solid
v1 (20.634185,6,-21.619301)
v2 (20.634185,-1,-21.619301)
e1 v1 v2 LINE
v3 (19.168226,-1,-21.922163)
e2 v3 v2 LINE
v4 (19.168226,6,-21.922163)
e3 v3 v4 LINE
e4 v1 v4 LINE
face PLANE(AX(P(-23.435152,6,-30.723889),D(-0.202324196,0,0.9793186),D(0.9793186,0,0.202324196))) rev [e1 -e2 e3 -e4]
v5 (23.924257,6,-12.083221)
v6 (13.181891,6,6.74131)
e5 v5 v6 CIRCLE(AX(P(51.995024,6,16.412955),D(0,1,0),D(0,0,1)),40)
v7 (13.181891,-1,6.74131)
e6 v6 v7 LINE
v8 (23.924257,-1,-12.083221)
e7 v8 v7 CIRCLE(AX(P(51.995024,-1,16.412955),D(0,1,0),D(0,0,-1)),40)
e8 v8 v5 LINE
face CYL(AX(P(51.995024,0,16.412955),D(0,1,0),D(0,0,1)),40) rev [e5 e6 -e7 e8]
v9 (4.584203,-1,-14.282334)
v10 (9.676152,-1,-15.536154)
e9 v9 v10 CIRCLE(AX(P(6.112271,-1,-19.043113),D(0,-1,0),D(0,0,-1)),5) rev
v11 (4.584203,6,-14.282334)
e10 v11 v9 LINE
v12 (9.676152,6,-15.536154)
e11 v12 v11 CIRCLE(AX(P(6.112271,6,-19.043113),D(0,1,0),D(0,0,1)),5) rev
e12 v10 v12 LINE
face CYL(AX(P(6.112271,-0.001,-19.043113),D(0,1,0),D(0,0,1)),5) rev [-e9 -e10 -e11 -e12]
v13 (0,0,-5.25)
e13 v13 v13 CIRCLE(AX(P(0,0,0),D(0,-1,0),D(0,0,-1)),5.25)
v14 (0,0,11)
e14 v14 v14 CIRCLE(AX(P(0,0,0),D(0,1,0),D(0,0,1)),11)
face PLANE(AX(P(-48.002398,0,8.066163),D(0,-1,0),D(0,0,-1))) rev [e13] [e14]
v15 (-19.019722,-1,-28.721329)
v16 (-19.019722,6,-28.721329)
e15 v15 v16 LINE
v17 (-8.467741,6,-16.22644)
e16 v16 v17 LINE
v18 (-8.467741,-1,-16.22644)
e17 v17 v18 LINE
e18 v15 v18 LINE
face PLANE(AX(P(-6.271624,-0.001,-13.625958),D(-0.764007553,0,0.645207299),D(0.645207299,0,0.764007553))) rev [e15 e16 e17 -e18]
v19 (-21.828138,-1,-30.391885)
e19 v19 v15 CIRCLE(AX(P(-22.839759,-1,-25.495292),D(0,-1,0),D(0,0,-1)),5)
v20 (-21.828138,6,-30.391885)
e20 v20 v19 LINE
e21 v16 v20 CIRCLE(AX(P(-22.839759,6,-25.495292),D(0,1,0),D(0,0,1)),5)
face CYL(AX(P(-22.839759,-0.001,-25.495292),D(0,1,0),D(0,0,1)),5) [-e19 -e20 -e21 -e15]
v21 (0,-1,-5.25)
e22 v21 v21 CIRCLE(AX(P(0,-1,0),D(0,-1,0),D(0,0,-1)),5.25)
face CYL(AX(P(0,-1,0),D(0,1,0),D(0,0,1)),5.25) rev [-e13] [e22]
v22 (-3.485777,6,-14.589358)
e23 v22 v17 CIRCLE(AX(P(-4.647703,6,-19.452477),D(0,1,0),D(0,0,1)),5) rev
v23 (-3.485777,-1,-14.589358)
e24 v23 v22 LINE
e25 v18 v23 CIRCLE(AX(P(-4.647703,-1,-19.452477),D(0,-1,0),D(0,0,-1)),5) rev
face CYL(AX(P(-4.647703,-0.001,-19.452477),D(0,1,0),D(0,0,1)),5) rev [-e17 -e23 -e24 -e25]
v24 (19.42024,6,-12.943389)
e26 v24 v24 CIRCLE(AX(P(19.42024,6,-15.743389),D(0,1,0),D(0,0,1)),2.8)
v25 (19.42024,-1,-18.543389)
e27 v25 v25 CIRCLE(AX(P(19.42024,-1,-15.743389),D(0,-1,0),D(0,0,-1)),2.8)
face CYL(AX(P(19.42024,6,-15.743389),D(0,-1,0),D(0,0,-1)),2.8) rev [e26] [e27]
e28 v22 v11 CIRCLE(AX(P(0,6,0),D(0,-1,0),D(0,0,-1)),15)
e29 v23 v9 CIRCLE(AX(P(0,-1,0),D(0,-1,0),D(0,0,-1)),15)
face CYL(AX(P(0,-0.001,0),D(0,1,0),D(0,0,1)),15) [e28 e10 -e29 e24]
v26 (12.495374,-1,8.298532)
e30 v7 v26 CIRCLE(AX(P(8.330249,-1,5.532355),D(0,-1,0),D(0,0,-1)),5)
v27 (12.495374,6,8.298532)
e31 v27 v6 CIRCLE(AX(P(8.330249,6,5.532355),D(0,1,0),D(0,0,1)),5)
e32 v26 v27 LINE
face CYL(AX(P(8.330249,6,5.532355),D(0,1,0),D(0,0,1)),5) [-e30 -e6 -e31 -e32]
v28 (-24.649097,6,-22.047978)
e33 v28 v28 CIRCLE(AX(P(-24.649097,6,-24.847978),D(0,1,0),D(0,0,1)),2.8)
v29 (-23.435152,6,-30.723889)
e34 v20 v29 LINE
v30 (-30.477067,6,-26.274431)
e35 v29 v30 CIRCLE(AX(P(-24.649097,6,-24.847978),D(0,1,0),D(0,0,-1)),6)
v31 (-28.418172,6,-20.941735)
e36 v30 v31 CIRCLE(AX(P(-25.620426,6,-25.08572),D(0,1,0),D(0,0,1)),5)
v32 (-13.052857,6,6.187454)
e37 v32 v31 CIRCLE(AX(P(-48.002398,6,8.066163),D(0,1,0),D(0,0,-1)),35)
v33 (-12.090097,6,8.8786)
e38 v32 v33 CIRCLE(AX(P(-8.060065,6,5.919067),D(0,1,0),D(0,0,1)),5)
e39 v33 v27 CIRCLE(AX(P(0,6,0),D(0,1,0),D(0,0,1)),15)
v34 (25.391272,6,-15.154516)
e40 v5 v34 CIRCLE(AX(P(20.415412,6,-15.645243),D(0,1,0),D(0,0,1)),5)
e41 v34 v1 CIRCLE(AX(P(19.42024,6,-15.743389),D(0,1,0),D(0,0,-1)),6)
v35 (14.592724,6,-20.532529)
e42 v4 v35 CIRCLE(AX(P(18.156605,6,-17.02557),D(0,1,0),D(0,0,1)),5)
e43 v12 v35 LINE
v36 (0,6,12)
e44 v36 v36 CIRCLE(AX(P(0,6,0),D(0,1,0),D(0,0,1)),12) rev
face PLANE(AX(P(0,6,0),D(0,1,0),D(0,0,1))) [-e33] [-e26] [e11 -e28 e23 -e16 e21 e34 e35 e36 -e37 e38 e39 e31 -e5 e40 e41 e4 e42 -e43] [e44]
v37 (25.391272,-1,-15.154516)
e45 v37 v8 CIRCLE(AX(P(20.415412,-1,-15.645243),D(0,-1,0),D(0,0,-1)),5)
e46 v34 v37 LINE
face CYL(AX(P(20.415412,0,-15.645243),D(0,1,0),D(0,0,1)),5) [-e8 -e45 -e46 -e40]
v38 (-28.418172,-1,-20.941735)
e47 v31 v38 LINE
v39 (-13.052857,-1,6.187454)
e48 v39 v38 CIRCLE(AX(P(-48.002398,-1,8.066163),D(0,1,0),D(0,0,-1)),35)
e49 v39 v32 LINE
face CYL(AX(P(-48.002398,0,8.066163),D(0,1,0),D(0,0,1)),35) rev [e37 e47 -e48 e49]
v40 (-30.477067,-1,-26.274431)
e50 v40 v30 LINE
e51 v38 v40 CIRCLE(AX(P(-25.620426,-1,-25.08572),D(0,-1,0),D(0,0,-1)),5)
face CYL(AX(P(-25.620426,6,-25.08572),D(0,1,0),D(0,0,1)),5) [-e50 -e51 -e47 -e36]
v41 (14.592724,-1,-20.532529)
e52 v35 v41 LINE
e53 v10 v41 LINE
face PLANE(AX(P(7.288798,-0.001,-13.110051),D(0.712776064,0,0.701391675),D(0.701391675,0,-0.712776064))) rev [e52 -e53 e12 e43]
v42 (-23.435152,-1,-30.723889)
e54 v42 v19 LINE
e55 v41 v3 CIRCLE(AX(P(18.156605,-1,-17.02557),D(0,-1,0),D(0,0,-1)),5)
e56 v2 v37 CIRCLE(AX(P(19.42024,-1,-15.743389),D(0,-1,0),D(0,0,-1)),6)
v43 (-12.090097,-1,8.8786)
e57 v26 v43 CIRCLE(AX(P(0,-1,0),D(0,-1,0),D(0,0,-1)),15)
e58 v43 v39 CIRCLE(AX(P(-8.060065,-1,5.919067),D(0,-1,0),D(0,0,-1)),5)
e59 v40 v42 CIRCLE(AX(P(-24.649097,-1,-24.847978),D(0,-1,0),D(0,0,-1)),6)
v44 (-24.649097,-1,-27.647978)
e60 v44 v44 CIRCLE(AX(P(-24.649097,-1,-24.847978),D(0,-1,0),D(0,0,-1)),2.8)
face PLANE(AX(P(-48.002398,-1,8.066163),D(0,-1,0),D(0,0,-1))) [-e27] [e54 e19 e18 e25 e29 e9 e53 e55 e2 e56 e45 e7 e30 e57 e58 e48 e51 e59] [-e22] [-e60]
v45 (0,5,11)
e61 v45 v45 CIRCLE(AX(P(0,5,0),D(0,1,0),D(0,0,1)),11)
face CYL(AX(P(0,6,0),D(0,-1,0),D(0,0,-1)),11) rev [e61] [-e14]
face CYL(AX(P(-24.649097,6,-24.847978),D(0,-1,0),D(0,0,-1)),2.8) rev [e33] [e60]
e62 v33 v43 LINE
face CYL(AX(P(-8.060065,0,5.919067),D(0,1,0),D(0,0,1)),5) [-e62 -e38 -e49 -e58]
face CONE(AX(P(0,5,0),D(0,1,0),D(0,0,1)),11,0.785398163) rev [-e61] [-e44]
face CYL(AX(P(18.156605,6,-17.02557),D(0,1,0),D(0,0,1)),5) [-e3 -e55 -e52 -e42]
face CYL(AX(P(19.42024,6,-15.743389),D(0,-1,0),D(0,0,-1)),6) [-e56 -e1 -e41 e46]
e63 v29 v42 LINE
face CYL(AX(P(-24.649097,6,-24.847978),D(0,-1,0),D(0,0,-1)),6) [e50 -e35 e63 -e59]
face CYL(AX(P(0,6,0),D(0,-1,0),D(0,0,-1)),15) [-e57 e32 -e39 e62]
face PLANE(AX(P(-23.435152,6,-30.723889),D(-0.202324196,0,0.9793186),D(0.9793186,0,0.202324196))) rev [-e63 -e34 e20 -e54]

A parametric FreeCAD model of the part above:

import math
import FreeCAD as App
import Part
import Sketcher

V = App.Vector


def edges_at(feature, points):
    """Names of the edges that pass closest to the given points."""
    edges = feature.Shape.Edges
    near = lambda p: min(range(len(edges)), key=lambda i: edges[i].distToShape(Part.Vertex(*p))[0])
    return sorted({f"Edge{near(p) + 1}" for p in points})

doc = App.newDocument("Part")
body = doc.addObject("PartDesign::Body", "Body")

# Sketch on XZ plane
sketch1 = body.newObject("Sketcher::SketchObject", "Sketch")
sketch1.AttachmentSupport = (doc.getObject("XZ_Plane"), [""])
sketch1.MapMode = "FlatFace"
sketch1.addGeometry([
    Part.LineSegment(V(-29.9, -21.9, 0), V(-13, 7.5, 0)),  # 0
    Part.ArcOfCircle(Part.Circle(V(0, 0, 0), V(0, 0, 1), 15), math.radians(30), math.radians(150)),  # 1
    Part.LineSegment(V(13, 7.5, 0), V(24.6, -12.8, 0)),  # 2
    Part.ArcOfCircle(Part.Circle(V(19.4, -15.7, 0), V(0, 0, 1), 6), math.radians(-78), math.radians(30)),  # 3
    Part.LineSegment(V(20.6, -21.6, 0), V(-23.4, -30.7, 0)),  # 4
    Part.ArcOfCircle(Part.Circle(V(-24.6, -24.8, 0), V(0, 0, 1), 6), math.radians(150), math.radians(282)),  # 5
    Part.Circle(V(0, 0, 0), V(0, 0, 1), 11),  # 6
    Part.Circle(V(19.4, -15.7, 0), V(0, 0, 1), 2.8),  # 7
    Part.Circle(V(-24.6, -24.8, 0), V(0, 0, 1), 2.8),  # 8
], False)
sketch1.addConstraint([
    Sketcher.Constraint("Tangent", 0, 2, 1, 2),
    Sketcher.Constraint("Tangent", 1, 1, 2, 1),
    Sketcher.Constraint("Tangent", 2, 2, 3, 2),
    Sketcher.Constraint("Tangent", 3, 1, 4, 1),
    Sketcher.Constraint("Tangent", 4, 2, 5, 2),
    Sketcher.Constraint("Tangent", 5, 1, 0, 1),
    Sketcher.Constraint("Coincident", 1, 3, -1, 1),
    Sketcher.Constraint("Coincident", 6, 3, -1, 1),
    Sketcher.Constraint("Coincident", 7, 3, 3, 3),
    Sketcher.Constraint("Coincident", 8, 3, 5, 3),
    Sketcher.Constraint("Equal", 3, 5),
    Sketcher.Constraint("Equal", 7, 8),
    Sketcher.Constraint("Horizontal", 0, 2, 1, 1),
    Sketcher.Constraint("Diameter", 6, 22.0),
    Sketcher.Constraint("Radius", 1, 15.0),
    Sketcher.Constraint("Radius", 3, 6.0),
    Sketcher.Constraint("Diameter", 7, 5.6),
    Sketcher.Constraint("Distance", 4, 45.0),
    Sketcher.Constraint("DistanceY", 3, 1, -1, 1, 21.619301),
    Sketcher.Constraint("DistanceY", 5, 3, 0, 2, 32.3183),
])
pad1 = body.newObject("PartDesign::Pad", "Pad")
pad1.Profile = sketch1
pad1.Length = 6
pad1.Reversed = True

# Sketch on XZ plane
sketch2 = body.newObject("Sketcher::SketchObject", "Sketch001")
sketch2.AttachmentSupport = (doc.getObject("XZ_Plane"), [""])
sketch2.MapMode = "FlatFace"
sketch2.AttachmentOffset = App.Placement(V(0, 0, -6), App.Rotation())
sketch2.addGeometry([
    Part.LineSegment(V(-20, -30, 0), V(-6, -14, 0)),
    Part.ArcOfCircle(Part.Circle(V(0, 0, 0), V(0, 0, 1), 15), math.radians(-115), math.radians(-61)),
    Part.LineSegment(V(7, -13, 0), V(17, -22, 0)),
    Part.LineSegment(V(17, -22, 0), V(-20, -30, 0)),
], False)
sketch2.addConstraint([
    Sketcher.Constraint("Coincident", 0, 2, 1, 1),
    Sketcher.Constraint("Coincident", 1, 2, 2, 1),
    Sketcher.Constraint("Coincident", 2, 2, 3, 1),
    Sketcher.Constraint("Coincident", 3, 2, 0, 1),
    Sketcher.Constraint("Coincident", 1, 3, -1, 1),
    Sketcher.Constraint("Radius", 1, 15.0),
    Sketcher.Constraint("Distance", 2, 13.13584),
    Sketcher.Constraint("Distance", 3, 37.411009),
    Sketcher.Constraint("DistanceY", 0, 2, -1, 1, 13.625958),
    Sketcher.Constraint("DistanceY", 1, 2, -1, 1, 13.110051),
    Sketcher.Constraint("DistanceX", 3, 2, -1, 1, 20.135131),
    Sketcher.Constraint("DistanceX", 1, 2, 2, 2, 9.213369),
])
pocket1 = body.newObject("PartDesign::Pocket", "Pocket")
pocket1.Profile = sketch2
pocket1.Type = "UpToFirst"
pocket1.Reversed = True
doc.recompute()

chamfer = body.newObject("PartDesign::Chamfer", "Chamfer")
chamfer.Base = (pocket1, edges_at(pocket1, [(0, 6, -11)]))
chamfer.Size = 1

# Sketch on XZ plane
sketch3 = body.newObject("Sketcher::SketchObject", "Sketch002")
sketch3.AttachmentSupport = (doc.getObject("XZ_Plane"), [""])
sketch3.MapMode = "FlatFace"
sketch3.AttachmentOffset = App.Placement(V(0, 0, -6), App.Rotation())
sketch3.addGeometry([
    Part.LineSegment(V(-30, -22, 0), V(-13, 7, 0)),
    Part.ArcOfCircle(Part.Circle(V(-48, 8, 0), V(0, 0, 1), 35), math.radians(-59), math.radians(-1)),
    Part.LineSegment(V(13, 7, 0), V(25, -13, 0)),
    Part.ArcOfCircle(Part.Circle(V(52, 16, 0), V(0, 0, 1), 40), math.radians(-167), math.radians(-133)),
], False)
sketch3.addConstraint([
    Sketcher.Constraint("Coincident", 0, 1, 1, 1),
    Sketcher.Constraint("Coincident", 1, 2, 0, 2),
    Sketcher.Constraint("Coincident", 2, 1, 3, 1),
    Sketcher.Constraint("Coincident", 3, 2, 2, 2),
    Sketcher.Constraint("Symmetric", 1, 2, 2, 1, -2),
    Sketcher.Constraint("Radius", 1, 35.0),
    Sketcher.Constraint("Radius", 3, 40.0),
    Sketcher.Constraint("DistanceX", 1, 3, -1, 1, 48.002398),
    Sketcher.Constraint("DistanceX", 1, 2, 3, 2, 37.630698),
    Sketcher.Constraint("Distance", 0, 33.823069),
    Sketcher.Constraint("DistanceY", 0, 1, -1, 1, 21.859849),
    Sketcher.Constraint("DistanceX", 1, 2, -1, 1, 13.00747),
    Sketcher.Constraint("DistanceY", 3, 2, -1, 1, 12.75526),
])
pocket2 = body.newObject("PartDesign::Pocket", "Pocket001")
pocket2.Profile = sketch3
pocket2.Type = "ThroughAll"
pocket2.Reversed = True

# Sketch on XZ plane
sketch4 = body.newObject("Sketcher::SketchObject", "Sketch003")
sketch4.AttachmentSupport = (doc.getObject("XZ_Plane"), [""])
sketch4.MapMode = "FlatFace"
sketch4.AttachmentOffset = App.Placement(V(0, 0, 1), App.Rotation())
sketch4.addGeometry([
    Part.LineSegment(V(16.5, -22.5, 0), V(20.6, -21.6, 0)),  # 0
    Part.ArcOfCircle(Part.Circle(V(19.4, -15.7, 0), V(0, 0, 1), 6), math.radians(-78), math.radians(30)),  # 1
    Part.ArcOfCircle(Part.Circle(V(52, 16.4, 0), V(0, 0, 1), 40), math.radians(-167), math.radians(-133)),  # 2
    Part.ArcOfCircle(Part.Circle(V(0, 0, 0), V(0, 0, 1), 15), math.radians(30), math.radians(150)),  # 3
    Part.ArcOfCircle(Part.Circle(V(-48, 8.1, 0), V(0, 0, 1), 35), math.radians(-59), math.radians(-1)),  # 4
    Part.ArcOfCircle(Part.Circle(V(-24.6, -24.8, 0), V(0, 0, 1), 6), math.radians(150), math.radians(282)),  # 5
    Part.LineSegment(V(-23.4, -30.7, 0), V(-20.1, -30, 0)),  # 6
    Part.LineSegment(V(-20.1, -30, 0), V(-6.3, -13.6, 0)),  # 7
    Part.ArcOfCircle(Part.Circle(V(0, 0, 0), V(0, 0, 1), 15), math.radians(-115), math.radians(-61)),  # 8
    Part.LineSegment(V(7.3, -13.1, 0), V(16.5, -22.5, 0)),  # 9
    Part.Circle(V(-24.6, -24.8, 0), V(0, 0, 1), 2.8),  # 10
    Part.Circle(V(19.4, -15.7, 0), V(0, 0, 1), 2.8),  # 11
    Part.Circle(V(0, 0, 0), V(0, 0, 1), 5.2),  # 12
], False)
sketch4.addConstraint([
    Sketcher.Constraint("Tangent", 0, 2, 1, 1),
    Sketcher.Constraint("Coincident", 1, 2, 2, 2),
    Sketcher.Constraint("Coincident", 2, 1, 3, 1),
    Sketcher.Constraint("Coincident", 3, 2, 4, 2),
    Sketcher.Constraint("Coincident", 4, 1, 5, 1),
    Sketcher.Constraint("Tangent", 5, 2, 6, 1),
    Sketcher.Constraint("Coincident", 6, 2, 7, 1),
    Sketcher.Constraint("Coincident", 7, 2, 8, 1),
    Sketcher.Constraint("Coincident", 8, 2, 9, 1),
    Sketcher.Constraint("Coincident", 9, 2, 0, 1),
    Sketcher.Constraint("Coincident", 3, 3, -1, 1),
    Sketcher.Constraint("Coincident", 8, 3, -1, 1),
    Sketcher.Constraint("Coincident", 12, 3, -1, 1),
    Sketcher.Constraint("Coincident", 10, 3, 5, 3),
    Sketcher.Constraint("Coincident", 11, 3, 1, 3),
    Sketcher.Constraint("Equal", 1, 5),
    Sketcher.Constraint("Equal", 3, 8),
    Sketcher.Constraint("Equal", 10, 11),
    Sketcher.Constraint("Parallel", 0, 6),
    Sketcher.Constraint("Horizontal", 2, 1, 3, 2),
    Sketcher.Constraint("Radius", 1, 6.0),
    Sketcher.Constraint("Radius", 2, 40.0),
    Sketcher.Constraint("Radius", 3, 15.0),
    Sketcher.Constraint("Radius", 4, 35.0),
    Sketcher.Constraint("Diameter", 10, 5.6),
    Sketcher.Constraint("Diameter", 12, 10.5),
    Sketcher.Constraint("DistanceX", 4, 3, -1, 1, 48.002398),
    Sketcher.Constraint("DistanceY", 0, 2, -1, 1, 21.619301),
    Sketcher.Constraint("DistanceX", 4, 3, 5, 3, 23.353301),
    Sketcher.Constraint("DistanceY", 5, 3, 3, 2, 32.3183),
    Sketcher.Constraint("Distance", 0, 4.219279),
    Sketcher.Constraint("Distance", 6, 3.369712),
    Sketcher.Constraint("Distance", 9, 13.13584),
    Sketcher.Constraint("DistanceX", -1, 1, 1, 3, 19.42024),
    Sketcher.Constraint("DistanceY", 1, 3, -1, 1, 15.743389),
    Sketcher.Constraint("DistanceY", 1, 2, -1, 1, 12.75526),
    Sketcher.Constraint("DistanceX", 3, 2, -1, 1, 13.00747),
    Sketcher.Constraint("DistanceY", 7, 2, -1, 1, 13.625958),
])
pad2 = body.newObject("PartDesign::Pad", "Pad001")
pad2.Profile = sketch4
pad2.Length = 1
pad2.Reversed = True
doc.recompute()

fillet = body.newObject("PartDesign::Fillet", "Fillet")
fillet.Base = (pad2, edges_at(pad2, [
    (-13.007, 3, 7.47),
    (-29.852, 3, -21.86),
    (24.623, 3, -12.755),
    (13.007, 3, 7.47),
    (7.289, 3, -13.11),
    (-6.272, 3, -13.626),
    (-20.135, 3, -30.042),
    (16.502, 3, -22.473),
]))
fillet.Radius = 5

doc.recompute()
